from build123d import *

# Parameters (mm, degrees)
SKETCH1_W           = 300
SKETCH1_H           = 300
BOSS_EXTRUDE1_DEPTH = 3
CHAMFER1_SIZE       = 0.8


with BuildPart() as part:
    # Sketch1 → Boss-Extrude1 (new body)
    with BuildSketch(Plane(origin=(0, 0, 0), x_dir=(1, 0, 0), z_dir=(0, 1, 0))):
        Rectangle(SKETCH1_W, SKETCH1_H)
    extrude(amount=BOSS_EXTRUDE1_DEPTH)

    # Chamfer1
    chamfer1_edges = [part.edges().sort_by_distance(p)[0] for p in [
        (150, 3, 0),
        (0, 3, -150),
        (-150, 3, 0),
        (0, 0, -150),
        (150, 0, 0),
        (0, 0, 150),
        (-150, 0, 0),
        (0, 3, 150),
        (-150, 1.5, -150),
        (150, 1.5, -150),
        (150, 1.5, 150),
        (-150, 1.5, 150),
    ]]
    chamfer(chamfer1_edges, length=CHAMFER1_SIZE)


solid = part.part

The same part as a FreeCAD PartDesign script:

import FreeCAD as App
import Part
import Sketcher

V = App.Vector

doc = App.newDocument("Part")
params = doc.addObject("Spreadsheet::Sheet", "Params")
for row, (alias, value) in enumerate([
    ("sketch1_width", "300 mm"),
    ("pad1_length", "3 mm"),
    ("chamfer_size", "0.8 mm"),
], start=1):
    params.set(f"A{row}", alias)
    params.set(f"B{row}", "=" + value)
    params.setAlias(f"B{row}", alias)

body = doc.addObject("PartDesign::Body", "Body")

sketch1 = body.newObject("Sketcher::SketchObject", "Sketch")
sketch1.AttachmentSupport = (doc.getObject("XZ_Plane"), [""])
sketch1.MapMode = "FlatFace"
sketch1.addGeometry([
    Part.LineSegment(V(-150, -150, 0), V(-150, 150, 0)),
    Part.LineSegment(V(-150, 150, 0), V(150, 150, 0)),
    Part.LineSegment(V(150, 150, 0), V(150, -150, 0)),
    Part.LineSegment(V(150, -150, 0), V(-150, -150, 0)),
], False)
sketch1.addConstraint([
    Sketcher.Constraint("Coincident", 0, 2, 1, 1),
    Sketcher.Constraint("Coincident", 1, 2, 2, 1),
    Sketcher.Constraint("Coincident", 2, 2, 3, 1),
    Sketcher.Constraint("Coincident", 3, 2, 0, 1),
    Sketcher.Constraint("Vertical", 0),
    Sketcher.Constraint("Horizontal", 1),
    Sketcher.Constraint("Vertical", 2),
    Sketcher.Constraint("Horizontal", 3),
    Sketcher.Constraint("Symmetric", 0, 2, 2, 2, -1, 1),
    Sketcher.Constraint("Equal", 3, 0),
    Sketcher.Constraint("DistanceX", 1, 1, 1, 2, 300.0),
])
sketch1.setExpression("Constraints[10]", "Params.sketch1_width")
pad1 = body.newObject("PartDesign::Pad", "Pad")
pad1.Profile = sketch1
pad1.setExpression("Length", "Params.pad1_length")
pad1.Reversed = True
doc.recompute()

chamfer = body.newObject("PartDesign::Chamfer", "Chamfer")
chamfer.Base = (pad1, ["Edge1"])
chamfer.UseAllEdges = True
chamfer.setExpression("Size", "Params.chamfer_size")

doc.recompute()
